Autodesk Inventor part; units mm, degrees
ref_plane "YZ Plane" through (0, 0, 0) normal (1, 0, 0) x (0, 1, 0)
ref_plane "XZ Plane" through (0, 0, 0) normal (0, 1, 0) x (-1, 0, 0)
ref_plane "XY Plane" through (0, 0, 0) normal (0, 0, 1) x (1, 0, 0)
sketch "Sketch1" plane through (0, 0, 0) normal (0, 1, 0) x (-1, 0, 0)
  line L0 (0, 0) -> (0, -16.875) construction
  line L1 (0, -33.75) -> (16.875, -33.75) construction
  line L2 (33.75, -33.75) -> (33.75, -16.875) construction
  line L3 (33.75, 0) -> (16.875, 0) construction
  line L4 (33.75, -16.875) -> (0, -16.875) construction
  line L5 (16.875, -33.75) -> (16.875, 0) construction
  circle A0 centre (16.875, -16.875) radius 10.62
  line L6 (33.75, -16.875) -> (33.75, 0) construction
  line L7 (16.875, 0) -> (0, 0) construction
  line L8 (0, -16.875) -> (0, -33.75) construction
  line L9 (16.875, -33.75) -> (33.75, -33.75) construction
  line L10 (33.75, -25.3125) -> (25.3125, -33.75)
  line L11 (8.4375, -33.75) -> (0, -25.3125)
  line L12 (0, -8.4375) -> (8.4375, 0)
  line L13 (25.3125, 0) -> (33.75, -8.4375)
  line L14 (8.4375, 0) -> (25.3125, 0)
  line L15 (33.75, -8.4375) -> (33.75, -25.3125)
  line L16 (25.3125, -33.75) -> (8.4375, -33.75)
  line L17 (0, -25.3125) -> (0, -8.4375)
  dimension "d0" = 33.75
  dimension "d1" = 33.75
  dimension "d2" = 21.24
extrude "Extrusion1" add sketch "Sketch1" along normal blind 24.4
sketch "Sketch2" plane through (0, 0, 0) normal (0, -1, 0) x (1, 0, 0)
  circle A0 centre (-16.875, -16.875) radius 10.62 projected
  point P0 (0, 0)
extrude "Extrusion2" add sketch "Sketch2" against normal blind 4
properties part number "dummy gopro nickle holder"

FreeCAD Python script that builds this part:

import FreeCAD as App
import Part
import Sketcher
from FreeCAD import Vector

doc = App.newDocument("Part")
body = doc.addObject("PartDesign::Body", "Body")

sketch1 = doc.addObject("Sketcher::SketchObject", "Sketch")
body.addObject(sketch1)
sketch1.AttachmentSupport = (doc.XZ_Plane, [""])
sketch1.MapMode = "FlatFace"
sketch1.addGeometry(Part.LineSegment(Vector(-25, -34, 0), Vector(-34, -25, 0)), False)
sketch1.addGeometry(Part.LineSegment(Vector(-34, -25, 0), Vector(-34, -8, 0)), False)
sketch1.addGeometry(Part.LineSegment(Vector(-34, -8, 0), Vector(-25, 0, 0)), False)
sketch1.addGeometry(Part.LineSegment(Vector(-25, 0, 0), Vector(-8, 0, 0)), False)
sketch1.addGeometry(Part.LineSegment(Vector(-8, 0, 0), Vector(0, -8, 0)), False)
sketch1.addGeometry(Part.LineSegment(Vector(0, -8, 0), Vector(0, -25, 0)), False)
sketch1.addGeometry(Part.LineSegment(Vector(0, -25, 0), Vector(-8, -34, 0)), False)
sketch1.addGeometry(Part.LineSegment(Vector(-8, -34, 0), Vector(-25, -34, 0)), False)
sketch1.addGeometry(Part.Circle(Vector(-17, -17, 0), Vector(0, 0, 1), 11), False)
sketch1.addConstraint(Sketcher.Constraint("Coincident", 0, 2, 1, 1))
sketch1.addConstraint(Sketcher.Constraint("Coincident", 1, 2, 2, 1))
sketch1.addConstraint(Sketcher.Constraint("Coincident", 2, 2, 3, 1))
sketch1.addConstraint(Sketcher.Constraint("Coincident", 3, 2, 4, 1))
sketch1.addConstraint(Sketcher.Constraint("Coincident", 4, 2, 5, 1))
sketch1.addConstraint(Sketcher.Constraint("Coincident", 5, 2, 6, 1))
sketch1.addConstraint(Sketcher.Constraint("Coincident", 6, 2, 7, 1))
sketch1.addConstraint(Sketcher.Constraint("Coincident", 7, 2, 0, 1))
sketch1.addConstraint(Sketcher.Constraint("Vertical", 1))
sketch1.addConstraint(Sketcher.Constraint("Horizontal", 3))
sketch1.addConstraint(Sketcher.Constraint("Vertical", 5))
sketch1.addConstraint(Sketcher.Constraint("Horizontal", 7))
sketch1.addConstraint(Sketcher.Constraint("PointOnObject", 2, 2, -1))
sketch1.addConstraint(Sketcher.Constraint("PointOnObject", 4, 2, -2))
sketch1.addConstraint(Sketcher.Constraint("Perpendicular", 0, 2))
sketch1.addConstraint(Sketcher.Constraint("Perpendicular", 2, 4))
sketch1.addConstraint(Sketcher.Constraint("Perpendicular", 4, 6))
sketch1.addConstraint(Sketcher.Constraint("Horizontal", 1, 2, 4, 2))
sketch1.addConstraint(Sketcher.Constraint("Horizontal", 0, 2, 5, 2))
sketch1.addConstraint(Sketcher.Constraint("Vertical", 3, 2, 6, 2))
sketch1.addConstraint(Sketcher.Constraint("Vertical", 2, 2, 7, 2))
sketch1.addConstraint(Sketcher.Constraint("Equal", 7, 1))
sketch1.addConstraint(Sketcher.Constraint("Diameter", 8, 21.24))
sketch1.addConstraint(Sketcher.Constraint("DistanceX", 0, 2, -1, 1, 33.75))
sketch1.addConstraint(Sketcher.Constraint("DistanceX", 3, 1, 3, 2, 16.875))
sketch1.addConstraint(Sketcher.Constraint("DistanceX", 8, 3, -1, 1, 16.875))
sketch1.addConstraint(Sketcher.Constraint("DistanceY", 8, 3, -1, 1, 16.875))
pad1 = doc.addObject("PartDesign::Pad", "Pad")
body.addObject(pad1)
pad1.Profile = sketch1
pad1.Length = 24.4
pad1.Reversed = True

sketch2 = doc.addObject("Sketcher::SketchObject", "Sketch001")
body.addObject(sketch2)
sketch2.AttachmentSupport = (doc.XZ_Plane, [""])
sketch2.MapMode = "FlatFace"
sketch2.addGeometry(Part.Circle(Vector(-17, -17, 0), Vector(0, 0, 1), 11), False)
sketch2.addConstraint(Sketcher.Constraint("Diameter", 0, 21.24))
sketch2.addConstraint(Sketcher.Constraint("DistanceX", 0, 3, -1, 1, 16.875))
sketch2.addConstraint(Sketcher.Constraint("DistanceY", 0, 3, -1, 1, 16.875))
pad2 = doc.addObject("PartDesign::Pad", "Pad001")
body.addObject(pad2)
pad2.Profile = sketch2
pad2.Length = 4
pad2.Reversed = True

doc.recompute()
